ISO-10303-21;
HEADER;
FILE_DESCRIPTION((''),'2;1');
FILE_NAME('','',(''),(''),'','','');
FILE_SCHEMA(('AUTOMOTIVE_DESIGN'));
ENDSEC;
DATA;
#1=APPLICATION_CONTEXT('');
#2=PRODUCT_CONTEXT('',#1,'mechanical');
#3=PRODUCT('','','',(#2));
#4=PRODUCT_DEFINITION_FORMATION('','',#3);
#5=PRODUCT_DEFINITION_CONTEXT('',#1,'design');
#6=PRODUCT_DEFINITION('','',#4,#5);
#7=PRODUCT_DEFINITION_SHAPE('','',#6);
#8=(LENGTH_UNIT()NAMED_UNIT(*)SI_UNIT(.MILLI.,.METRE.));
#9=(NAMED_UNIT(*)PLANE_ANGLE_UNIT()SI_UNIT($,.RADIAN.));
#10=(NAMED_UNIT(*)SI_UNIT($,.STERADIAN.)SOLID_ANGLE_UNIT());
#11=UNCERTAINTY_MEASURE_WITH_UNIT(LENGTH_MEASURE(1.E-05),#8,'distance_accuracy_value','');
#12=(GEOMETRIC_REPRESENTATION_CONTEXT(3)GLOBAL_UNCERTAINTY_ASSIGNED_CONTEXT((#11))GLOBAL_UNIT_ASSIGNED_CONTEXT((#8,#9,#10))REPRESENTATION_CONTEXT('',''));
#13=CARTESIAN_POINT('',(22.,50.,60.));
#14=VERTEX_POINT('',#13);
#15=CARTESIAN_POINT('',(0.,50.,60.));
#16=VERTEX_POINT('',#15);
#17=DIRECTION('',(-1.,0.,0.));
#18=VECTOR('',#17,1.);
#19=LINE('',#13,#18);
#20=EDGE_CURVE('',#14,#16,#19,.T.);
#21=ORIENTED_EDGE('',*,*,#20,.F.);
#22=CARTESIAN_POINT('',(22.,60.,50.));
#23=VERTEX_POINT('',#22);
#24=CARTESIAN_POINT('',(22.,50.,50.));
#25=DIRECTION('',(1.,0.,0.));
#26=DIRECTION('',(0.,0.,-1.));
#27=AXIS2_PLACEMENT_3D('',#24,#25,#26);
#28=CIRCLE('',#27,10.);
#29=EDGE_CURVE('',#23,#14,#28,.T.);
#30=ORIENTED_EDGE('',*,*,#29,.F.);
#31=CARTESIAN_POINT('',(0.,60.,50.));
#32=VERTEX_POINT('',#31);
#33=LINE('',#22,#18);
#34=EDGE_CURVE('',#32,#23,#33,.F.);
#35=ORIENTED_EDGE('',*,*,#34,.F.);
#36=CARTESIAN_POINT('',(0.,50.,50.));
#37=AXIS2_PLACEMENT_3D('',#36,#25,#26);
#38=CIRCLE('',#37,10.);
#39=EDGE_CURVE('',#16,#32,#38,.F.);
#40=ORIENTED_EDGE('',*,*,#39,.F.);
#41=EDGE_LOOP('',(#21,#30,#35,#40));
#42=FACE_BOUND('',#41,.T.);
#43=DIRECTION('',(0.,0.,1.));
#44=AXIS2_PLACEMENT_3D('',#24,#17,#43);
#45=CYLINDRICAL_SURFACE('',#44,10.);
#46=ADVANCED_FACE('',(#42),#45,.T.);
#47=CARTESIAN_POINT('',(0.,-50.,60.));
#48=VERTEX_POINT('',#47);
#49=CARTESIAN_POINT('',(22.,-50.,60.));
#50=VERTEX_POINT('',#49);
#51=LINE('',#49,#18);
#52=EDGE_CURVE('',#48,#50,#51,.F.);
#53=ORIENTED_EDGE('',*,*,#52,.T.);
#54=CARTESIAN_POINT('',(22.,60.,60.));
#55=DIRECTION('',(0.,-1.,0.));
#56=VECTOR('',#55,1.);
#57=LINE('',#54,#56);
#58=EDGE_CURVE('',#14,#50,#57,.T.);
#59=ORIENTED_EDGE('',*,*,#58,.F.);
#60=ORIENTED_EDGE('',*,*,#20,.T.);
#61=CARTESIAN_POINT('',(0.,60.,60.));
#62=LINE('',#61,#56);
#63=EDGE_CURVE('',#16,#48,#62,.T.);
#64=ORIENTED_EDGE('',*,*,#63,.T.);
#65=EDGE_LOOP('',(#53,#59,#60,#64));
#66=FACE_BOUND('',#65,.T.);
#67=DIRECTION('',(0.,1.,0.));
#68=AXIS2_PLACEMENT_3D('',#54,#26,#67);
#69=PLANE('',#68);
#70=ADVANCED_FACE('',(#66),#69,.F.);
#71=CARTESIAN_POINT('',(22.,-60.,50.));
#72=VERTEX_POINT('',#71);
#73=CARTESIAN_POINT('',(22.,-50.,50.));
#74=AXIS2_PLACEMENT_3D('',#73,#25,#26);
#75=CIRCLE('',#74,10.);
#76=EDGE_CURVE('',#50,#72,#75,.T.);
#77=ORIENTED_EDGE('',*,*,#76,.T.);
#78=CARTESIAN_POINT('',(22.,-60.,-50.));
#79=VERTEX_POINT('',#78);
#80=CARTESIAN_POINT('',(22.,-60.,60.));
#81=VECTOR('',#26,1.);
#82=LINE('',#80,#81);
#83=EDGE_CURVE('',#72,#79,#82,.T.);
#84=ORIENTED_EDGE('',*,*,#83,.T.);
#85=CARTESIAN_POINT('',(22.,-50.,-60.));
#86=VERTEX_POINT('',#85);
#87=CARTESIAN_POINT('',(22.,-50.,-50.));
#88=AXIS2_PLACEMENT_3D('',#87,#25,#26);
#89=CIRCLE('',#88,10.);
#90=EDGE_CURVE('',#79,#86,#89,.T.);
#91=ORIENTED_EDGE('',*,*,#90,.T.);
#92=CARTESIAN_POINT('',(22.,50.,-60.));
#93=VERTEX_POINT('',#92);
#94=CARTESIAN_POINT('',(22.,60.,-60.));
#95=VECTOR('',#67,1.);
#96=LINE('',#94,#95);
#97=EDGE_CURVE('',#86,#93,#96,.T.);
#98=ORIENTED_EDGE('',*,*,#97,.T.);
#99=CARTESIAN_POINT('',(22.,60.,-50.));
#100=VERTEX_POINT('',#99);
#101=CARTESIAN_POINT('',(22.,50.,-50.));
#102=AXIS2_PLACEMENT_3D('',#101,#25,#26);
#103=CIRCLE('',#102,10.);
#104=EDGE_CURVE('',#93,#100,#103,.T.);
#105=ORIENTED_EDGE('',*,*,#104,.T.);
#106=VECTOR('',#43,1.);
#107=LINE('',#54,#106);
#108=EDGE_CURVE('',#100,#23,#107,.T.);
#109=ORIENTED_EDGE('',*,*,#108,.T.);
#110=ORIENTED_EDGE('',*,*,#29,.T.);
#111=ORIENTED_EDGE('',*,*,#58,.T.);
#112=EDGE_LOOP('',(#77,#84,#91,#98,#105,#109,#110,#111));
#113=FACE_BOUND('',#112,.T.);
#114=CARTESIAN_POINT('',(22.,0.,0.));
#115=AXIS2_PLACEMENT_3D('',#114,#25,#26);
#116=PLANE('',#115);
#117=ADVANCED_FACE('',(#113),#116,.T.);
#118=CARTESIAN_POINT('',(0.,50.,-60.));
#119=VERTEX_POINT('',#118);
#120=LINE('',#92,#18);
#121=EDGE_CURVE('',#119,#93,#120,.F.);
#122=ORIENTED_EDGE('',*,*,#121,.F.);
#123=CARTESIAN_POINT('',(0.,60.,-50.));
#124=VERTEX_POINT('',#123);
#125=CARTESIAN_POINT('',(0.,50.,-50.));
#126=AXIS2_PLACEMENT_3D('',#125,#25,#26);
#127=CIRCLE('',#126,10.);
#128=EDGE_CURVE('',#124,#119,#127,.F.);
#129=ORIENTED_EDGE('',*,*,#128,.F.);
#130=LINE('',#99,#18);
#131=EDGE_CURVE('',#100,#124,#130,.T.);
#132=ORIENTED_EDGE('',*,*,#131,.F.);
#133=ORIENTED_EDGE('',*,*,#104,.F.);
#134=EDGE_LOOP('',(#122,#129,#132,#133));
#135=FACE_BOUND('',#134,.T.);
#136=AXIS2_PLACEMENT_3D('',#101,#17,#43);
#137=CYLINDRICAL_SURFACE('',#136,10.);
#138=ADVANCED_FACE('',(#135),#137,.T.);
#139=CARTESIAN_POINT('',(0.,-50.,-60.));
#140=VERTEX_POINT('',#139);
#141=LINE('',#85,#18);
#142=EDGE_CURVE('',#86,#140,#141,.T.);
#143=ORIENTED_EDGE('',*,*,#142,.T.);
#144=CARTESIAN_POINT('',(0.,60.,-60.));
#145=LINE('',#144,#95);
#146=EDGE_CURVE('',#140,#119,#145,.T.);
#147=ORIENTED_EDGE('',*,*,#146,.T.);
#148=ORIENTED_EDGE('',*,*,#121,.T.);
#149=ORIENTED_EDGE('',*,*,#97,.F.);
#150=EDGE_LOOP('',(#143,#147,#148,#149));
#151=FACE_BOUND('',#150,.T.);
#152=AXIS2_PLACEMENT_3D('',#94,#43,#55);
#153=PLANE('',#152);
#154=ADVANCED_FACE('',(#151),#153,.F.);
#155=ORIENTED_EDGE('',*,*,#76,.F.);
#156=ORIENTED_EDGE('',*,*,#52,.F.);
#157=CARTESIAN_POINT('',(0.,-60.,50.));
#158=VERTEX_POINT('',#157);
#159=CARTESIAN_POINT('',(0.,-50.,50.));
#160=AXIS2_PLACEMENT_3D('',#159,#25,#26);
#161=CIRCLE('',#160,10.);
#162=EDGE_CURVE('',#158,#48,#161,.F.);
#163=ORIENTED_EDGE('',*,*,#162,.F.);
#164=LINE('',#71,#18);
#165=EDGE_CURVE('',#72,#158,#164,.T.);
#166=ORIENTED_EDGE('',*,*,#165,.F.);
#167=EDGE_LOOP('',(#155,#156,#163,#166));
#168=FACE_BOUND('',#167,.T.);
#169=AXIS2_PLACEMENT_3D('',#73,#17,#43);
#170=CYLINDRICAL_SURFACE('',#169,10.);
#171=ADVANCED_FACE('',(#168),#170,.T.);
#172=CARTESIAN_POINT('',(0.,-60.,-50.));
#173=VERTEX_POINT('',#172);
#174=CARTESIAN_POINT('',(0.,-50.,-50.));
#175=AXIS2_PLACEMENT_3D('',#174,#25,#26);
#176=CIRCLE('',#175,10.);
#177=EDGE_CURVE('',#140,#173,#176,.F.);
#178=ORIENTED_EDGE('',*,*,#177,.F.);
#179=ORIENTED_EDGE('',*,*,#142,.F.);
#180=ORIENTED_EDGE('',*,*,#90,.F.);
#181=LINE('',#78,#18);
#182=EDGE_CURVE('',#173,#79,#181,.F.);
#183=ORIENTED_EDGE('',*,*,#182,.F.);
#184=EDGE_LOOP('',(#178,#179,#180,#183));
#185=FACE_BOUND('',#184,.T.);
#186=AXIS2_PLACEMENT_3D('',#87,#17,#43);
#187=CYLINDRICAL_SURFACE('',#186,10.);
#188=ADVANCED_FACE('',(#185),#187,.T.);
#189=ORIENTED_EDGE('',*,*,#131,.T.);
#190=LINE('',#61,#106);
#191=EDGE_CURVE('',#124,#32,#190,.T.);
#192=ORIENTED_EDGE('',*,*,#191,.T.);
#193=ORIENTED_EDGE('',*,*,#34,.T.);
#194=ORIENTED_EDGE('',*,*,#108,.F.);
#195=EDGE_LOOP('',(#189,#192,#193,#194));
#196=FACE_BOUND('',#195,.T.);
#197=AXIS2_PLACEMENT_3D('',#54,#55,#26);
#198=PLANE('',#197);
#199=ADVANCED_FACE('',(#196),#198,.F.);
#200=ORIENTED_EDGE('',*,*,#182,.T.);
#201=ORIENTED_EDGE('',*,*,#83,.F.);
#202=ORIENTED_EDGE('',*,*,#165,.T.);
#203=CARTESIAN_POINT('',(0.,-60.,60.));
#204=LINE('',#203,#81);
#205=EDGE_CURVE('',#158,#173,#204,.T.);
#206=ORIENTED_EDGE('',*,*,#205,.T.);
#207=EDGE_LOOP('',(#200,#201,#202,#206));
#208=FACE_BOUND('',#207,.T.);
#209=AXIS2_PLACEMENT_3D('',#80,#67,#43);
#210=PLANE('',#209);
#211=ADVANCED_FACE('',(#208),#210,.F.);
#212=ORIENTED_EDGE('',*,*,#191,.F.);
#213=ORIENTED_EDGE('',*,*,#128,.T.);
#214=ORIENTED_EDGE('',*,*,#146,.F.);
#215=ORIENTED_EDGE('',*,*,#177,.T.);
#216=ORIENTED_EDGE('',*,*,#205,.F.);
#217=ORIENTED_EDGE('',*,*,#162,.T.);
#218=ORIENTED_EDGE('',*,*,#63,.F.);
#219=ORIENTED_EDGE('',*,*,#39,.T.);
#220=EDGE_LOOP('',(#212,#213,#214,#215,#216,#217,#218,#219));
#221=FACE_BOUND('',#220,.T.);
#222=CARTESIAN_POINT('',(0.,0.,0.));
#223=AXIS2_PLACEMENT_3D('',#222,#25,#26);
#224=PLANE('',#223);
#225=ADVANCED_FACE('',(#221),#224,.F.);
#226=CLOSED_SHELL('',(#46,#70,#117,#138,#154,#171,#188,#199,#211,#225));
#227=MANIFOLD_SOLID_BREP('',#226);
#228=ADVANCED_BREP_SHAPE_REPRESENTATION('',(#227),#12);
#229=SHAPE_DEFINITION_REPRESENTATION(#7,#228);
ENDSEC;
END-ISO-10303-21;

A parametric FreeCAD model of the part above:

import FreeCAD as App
import Part
import Sketcher
from FreeCAD import Vector
Q = App.Units.Quantity


def edges_at(feature, points):
    """Names of the edges that pass closest to the given points."""
    edges = feature.Shape.Edges
    near = lambda p: min(range(len(edges)), key=lambda i: edges[i].distToShape(Part.Vertex(*p))[0])
    return sorted({f"Edge{near(p) + 1}" for p in points})

doc = App.newDocument("Part")
body = doc.addObject("PartDesign::Body", "Body")

sketch1 = doc.addObject("Sketcher::SketchObject", "Sketch")
body.addObject(sketch1)
sketch1.AttachmentSupport = (doc.YZ_Plane, [""])
sketch1.MapMode = "FlatFace"
sketch1.addGeometry(Part.LineSegment(Vector(60, 60, 0), Vector(-60, 60, 0)), False)
sketch1.addGeometry(Part.LineSegment(Vector(-60, 60, 0), Vector(-60, -60, 0)), False)
sketch1.addGeometry(Part.LineSegment(Vector(-60, -60, 0), Vector(60, -60, 0)), False)
sketch1.addGeometry(Part.LineSegment(Vector(60, -60, 0), Vector(60, 60, 0)), False)
sketch1.addConstraint(Sketcher.Constraint("Coincident", 0, 2, 1, 1))
sketch1.addConstraint(Sketcher.Constraint("Coincident", 1, 2, 2, 1))
sketch1.addConstraint(Sketcher.Constraint("Coincident", 2, 2, 3, 1))
sketch1.addConstraint(Sketcher.Constraint("Coincident", 3, 2, 0, 1))
sketch1.addConstraint(Sketcher.Constraint("Horizontal", 0))
sketch1.addConstraint(Sketcher.Constraint("Vertical", 1))
sketch1.addConstraint(Sketcher.Constraint("Horizontal", 2))
sketch1.addConstraint(Sketcher.Constraint("Vertical", 3))
sketch1.addConstraint(Sketcher.Constraint("Symmetric", 0, 2, 2, 2, -1, 1))
sketch1.addConstraint(Sketcher.Constraint("Equal", 2, 1))
sketch1.addConstraint(Sketcher.Constraint("DistanceX", 0, 2, 0, 1, Q("120 mm")))
pad1 = doc.addObject("PartDesign::Pad", "Pad")
body.addObject(pad1)
pad1.Profile = sketch1
pad1.Length = 22
doc.recompute()

fillet = doc.addObject("PartDesign::Fillet", "Fillet")
body.addObject(fillet)
fillet.Base = (pad1, edges_at(pad1, [
    (11, 60, 60),
    (11, 60, -60),
    (11, -60, -60),
    (11, -60, 60),
]))
fillet.Radius = 10

doc.recompute()
